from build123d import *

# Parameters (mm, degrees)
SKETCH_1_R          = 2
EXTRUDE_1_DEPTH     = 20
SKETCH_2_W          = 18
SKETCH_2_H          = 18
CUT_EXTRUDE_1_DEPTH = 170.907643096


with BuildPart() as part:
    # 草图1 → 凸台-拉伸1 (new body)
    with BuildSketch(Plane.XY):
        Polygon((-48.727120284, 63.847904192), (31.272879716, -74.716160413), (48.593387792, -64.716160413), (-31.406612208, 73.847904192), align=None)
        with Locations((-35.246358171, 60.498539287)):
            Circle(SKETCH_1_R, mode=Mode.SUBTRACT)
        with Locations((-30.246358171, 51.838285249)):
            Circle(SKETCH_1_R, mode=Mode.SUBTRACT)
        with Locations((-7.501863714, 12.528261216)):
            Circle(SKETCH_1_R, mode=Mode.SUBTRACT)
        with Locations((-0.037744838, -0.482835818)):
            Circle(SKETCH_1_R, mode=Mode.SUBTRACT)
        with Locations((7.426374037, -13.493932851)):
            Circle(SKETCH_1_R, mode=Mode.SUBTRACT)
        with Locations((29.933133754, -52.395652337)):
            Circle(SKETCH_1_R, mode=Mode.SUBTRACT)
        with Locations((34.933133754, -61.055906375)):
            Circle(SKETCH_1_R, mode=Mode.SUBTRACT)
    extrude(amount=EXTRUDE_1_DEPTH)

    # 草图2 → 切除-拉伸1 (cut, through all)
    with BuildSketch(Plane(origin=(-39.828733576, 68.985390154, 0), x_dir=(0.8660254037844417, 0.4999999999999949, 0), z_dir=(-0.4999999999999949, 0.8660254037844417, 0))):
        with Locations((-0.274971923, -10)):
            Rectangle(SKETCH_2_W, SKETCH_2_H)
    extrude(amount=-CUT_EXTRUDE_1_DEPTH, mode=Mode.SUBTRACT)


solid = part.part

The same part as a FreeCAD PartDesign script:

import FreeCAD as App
import Part
import Sketcher
from FreeCAD import Vector
Q = App.Units.Quantity


def add_polygon(sketch, points):
    """Adds a closed chain of lines whose ends are joined by coincident constraints."""
    first, n = sketch.GeometryCount, len(points)
    for a, b in zip(points, points[1:] + points[:1]):
        sketch.addGeometry(Part.LineSegment(App.Vector(*a, 0), App.Vector(*b, 0)), False)
    for i in range(n):
        sketch.addConstraint(Sketcher.Constraint("Coincident", first + i, 2, first + (i + 1) % n, 1))

doc = App.newDocument("Part")
body = doc.addObject("PartDesign::Body", "Body")

# Sketch on XY plane
sketch1 = doc.addObject("Sketcher::SketchObject", "Sketch")
body.addObject(sketch1)
sketch1.AttachmentSupport = (doc.XY_Plane, [""])
sketch1.MapMode = "FlatFace"
add_polygon(sketch1, [(-48.72712, 63.847904), (31.27288, -74.71616), (48.593388, -64.71616), (-31.406612, 73.847904)])  # lines 0-3
sketch1.addGeometry(Part.Circle(Vector(34.933134, -61.055906, 0), Vector(0, 0, 1), 2), False)  # 4
sketch1.addGeometry(Part.Circle(Vector(29.933134, -52.395652, 0), Vector(0, 0, 1), 2), False)  # 5
sketch1.addGeometry(Part.Circle(Vector(7.426374, -13.493933, 0), Vector(0, 0, 1), 2), False)  # 6
sketch1.addGeometry(Part.Circle(Vector(-0.037745, -0.482836, 0), Vector(0, 0, 1), 2), False)  # 7
sketch1.addGeometry(Part.Circle(Vector(-7.501864, 12.528261, 0), Vector(0, 0, 1), 2), False)  # 8
sketch1.addGeometry(Part.Circle(Vector(-30.246358, 51.838285, 0), Vector(0, 0, 1), 2), False)  # 9
sketch1.addGeometry(Part.Circle(Vector(-35.246358, 60.498539, 0), Vector(0, 0, 1), 2), False)  # 10
sketch1.addConstraint([
    Sketcher.Constraint("Equal", 4, 5),
    Sketcher.Constraint("Equal", 5, 6),
    Sketcher.Constraint("Equal", 6, 7),
    Sketcher.Constraint("Equal", 7, 8),
    Sketcher.Constraint("Equal", 8, 9),
    Sketcher.Constraint("Equal", 9, 10),
    Sketcher.Constraint("Perpendicular", 0, 1),
    Sketcher.Constraint("Perpendicular", 1, 2),
    Sketcher.Constraint("Perpendicular", 2, 3),
    Sketcher.Constraint("Diameter", 4, 4.0),
    Sketcher.Constraint("Angle", 0, Q("-60 deg")),
    Sketcher.Constraint("Distance", 0, 160.0),
    Sketcher.Constraint("Distance", 1, 20.0),
    Sketcher.Constraint("DistanceX", 5, 3, 4, 3, 5.0),
    Sketcher.Constraint("DistanceX", 10, 3, 9, 3, 5.0),
    Sketcher.Constraint("DistanceY", -1, 1, 8, 3, 12.528261),
    Sketcher.Constraint("DistanceX", 9, 3, -1, 1, 30.246358),
    Sketcher.Constraint("DistanceY", -1, 1, 10, 3, 60.498539),
    Sketcher.Constraint("DistanceX", -1, 1, 0, 2, 31.27288),
    Sketcher.Constraint("DistanceY", 0, 2, -1, 1, 74.71616),
    Sketcher.Constraint("DistanceX", 6, 3, 5, 3, 22.50676),
    Sketcher.Constraint("DistanceY", 5, 3, 6, 3, 38.901719),
    Sketcher.Constraint("DistanceX", 7, 3, 6, 3, 7.464119),
    Sketcher.Constraint("DistanceY", 4, 3, 7, 3, 60.573071),
    Sketcher.Constraint("DistanceX", 8, 3, 7, 3, 7.464119),
    Sketcher.Constraint("DistanceY", 7, 3, 9, 3, 52.321121),
    Sketcher.Constraint("DistanceY", 6, 3, 9, 3, 65.332218),
    Sketcher.Constraint("DistanceX", 9, 3, 5, 3, 60.179492),
    Sketcher.Constraint("DistanceY", 5, 3, 10, 3, 112.894192),
])
pad1 = doc.addObject("PartDesign::Pad", "Pad")
body.addObject(pad1)
pad1.Profile = sketch1
pad1.Length = 20

# Sketch on an angled plane
sketch2 = doc.addObject("Sketcher::SketchObject", "Sketch001")
body.addObject(sketch2)
sketch2.Placement = App.Placement(Vector(-39.828734, 68.98539, 0), App.Rotation(Vector(0.866025404, 0.5, 0), Vector(0, 0, -1), Vector(-0.5, 0.866025404, 0), "ZXY"))
add_polygon(sketch2, [(-9.274972, -1), (-9.274972, -19), (8.725028, -19), (8.725028, -1)])  # lines 0-3
sketch2.addConstraint([
    Sketcher.Constraint("Vertical", 0),
    Sketcher.Constraint("Horizontal", 1),
    Sketcher.Constraint("Vertical", 2),
    Sketcher.Constraint("Horizontal", 3),
    Sketcher.Constraint("Equal", 3, 0),
    Sketcher.Constraint("DistanceX", 1, 1, 1, 2, 18.0),
    Sketcher.Constraint("DistanceY", 0, 2, -1, 1, 19.0),
    Sketcher.Constraint("DistanceX", 0, 2, -1, 1, 9.274972),
])
pocket1 = doc.addObject("PartDesign::Pocket", "Pocket")
body.addObject(pocket1)
pocket1.Profile = sketch2
pocket1.Type = "ThroughAll"

doc.recompute()
